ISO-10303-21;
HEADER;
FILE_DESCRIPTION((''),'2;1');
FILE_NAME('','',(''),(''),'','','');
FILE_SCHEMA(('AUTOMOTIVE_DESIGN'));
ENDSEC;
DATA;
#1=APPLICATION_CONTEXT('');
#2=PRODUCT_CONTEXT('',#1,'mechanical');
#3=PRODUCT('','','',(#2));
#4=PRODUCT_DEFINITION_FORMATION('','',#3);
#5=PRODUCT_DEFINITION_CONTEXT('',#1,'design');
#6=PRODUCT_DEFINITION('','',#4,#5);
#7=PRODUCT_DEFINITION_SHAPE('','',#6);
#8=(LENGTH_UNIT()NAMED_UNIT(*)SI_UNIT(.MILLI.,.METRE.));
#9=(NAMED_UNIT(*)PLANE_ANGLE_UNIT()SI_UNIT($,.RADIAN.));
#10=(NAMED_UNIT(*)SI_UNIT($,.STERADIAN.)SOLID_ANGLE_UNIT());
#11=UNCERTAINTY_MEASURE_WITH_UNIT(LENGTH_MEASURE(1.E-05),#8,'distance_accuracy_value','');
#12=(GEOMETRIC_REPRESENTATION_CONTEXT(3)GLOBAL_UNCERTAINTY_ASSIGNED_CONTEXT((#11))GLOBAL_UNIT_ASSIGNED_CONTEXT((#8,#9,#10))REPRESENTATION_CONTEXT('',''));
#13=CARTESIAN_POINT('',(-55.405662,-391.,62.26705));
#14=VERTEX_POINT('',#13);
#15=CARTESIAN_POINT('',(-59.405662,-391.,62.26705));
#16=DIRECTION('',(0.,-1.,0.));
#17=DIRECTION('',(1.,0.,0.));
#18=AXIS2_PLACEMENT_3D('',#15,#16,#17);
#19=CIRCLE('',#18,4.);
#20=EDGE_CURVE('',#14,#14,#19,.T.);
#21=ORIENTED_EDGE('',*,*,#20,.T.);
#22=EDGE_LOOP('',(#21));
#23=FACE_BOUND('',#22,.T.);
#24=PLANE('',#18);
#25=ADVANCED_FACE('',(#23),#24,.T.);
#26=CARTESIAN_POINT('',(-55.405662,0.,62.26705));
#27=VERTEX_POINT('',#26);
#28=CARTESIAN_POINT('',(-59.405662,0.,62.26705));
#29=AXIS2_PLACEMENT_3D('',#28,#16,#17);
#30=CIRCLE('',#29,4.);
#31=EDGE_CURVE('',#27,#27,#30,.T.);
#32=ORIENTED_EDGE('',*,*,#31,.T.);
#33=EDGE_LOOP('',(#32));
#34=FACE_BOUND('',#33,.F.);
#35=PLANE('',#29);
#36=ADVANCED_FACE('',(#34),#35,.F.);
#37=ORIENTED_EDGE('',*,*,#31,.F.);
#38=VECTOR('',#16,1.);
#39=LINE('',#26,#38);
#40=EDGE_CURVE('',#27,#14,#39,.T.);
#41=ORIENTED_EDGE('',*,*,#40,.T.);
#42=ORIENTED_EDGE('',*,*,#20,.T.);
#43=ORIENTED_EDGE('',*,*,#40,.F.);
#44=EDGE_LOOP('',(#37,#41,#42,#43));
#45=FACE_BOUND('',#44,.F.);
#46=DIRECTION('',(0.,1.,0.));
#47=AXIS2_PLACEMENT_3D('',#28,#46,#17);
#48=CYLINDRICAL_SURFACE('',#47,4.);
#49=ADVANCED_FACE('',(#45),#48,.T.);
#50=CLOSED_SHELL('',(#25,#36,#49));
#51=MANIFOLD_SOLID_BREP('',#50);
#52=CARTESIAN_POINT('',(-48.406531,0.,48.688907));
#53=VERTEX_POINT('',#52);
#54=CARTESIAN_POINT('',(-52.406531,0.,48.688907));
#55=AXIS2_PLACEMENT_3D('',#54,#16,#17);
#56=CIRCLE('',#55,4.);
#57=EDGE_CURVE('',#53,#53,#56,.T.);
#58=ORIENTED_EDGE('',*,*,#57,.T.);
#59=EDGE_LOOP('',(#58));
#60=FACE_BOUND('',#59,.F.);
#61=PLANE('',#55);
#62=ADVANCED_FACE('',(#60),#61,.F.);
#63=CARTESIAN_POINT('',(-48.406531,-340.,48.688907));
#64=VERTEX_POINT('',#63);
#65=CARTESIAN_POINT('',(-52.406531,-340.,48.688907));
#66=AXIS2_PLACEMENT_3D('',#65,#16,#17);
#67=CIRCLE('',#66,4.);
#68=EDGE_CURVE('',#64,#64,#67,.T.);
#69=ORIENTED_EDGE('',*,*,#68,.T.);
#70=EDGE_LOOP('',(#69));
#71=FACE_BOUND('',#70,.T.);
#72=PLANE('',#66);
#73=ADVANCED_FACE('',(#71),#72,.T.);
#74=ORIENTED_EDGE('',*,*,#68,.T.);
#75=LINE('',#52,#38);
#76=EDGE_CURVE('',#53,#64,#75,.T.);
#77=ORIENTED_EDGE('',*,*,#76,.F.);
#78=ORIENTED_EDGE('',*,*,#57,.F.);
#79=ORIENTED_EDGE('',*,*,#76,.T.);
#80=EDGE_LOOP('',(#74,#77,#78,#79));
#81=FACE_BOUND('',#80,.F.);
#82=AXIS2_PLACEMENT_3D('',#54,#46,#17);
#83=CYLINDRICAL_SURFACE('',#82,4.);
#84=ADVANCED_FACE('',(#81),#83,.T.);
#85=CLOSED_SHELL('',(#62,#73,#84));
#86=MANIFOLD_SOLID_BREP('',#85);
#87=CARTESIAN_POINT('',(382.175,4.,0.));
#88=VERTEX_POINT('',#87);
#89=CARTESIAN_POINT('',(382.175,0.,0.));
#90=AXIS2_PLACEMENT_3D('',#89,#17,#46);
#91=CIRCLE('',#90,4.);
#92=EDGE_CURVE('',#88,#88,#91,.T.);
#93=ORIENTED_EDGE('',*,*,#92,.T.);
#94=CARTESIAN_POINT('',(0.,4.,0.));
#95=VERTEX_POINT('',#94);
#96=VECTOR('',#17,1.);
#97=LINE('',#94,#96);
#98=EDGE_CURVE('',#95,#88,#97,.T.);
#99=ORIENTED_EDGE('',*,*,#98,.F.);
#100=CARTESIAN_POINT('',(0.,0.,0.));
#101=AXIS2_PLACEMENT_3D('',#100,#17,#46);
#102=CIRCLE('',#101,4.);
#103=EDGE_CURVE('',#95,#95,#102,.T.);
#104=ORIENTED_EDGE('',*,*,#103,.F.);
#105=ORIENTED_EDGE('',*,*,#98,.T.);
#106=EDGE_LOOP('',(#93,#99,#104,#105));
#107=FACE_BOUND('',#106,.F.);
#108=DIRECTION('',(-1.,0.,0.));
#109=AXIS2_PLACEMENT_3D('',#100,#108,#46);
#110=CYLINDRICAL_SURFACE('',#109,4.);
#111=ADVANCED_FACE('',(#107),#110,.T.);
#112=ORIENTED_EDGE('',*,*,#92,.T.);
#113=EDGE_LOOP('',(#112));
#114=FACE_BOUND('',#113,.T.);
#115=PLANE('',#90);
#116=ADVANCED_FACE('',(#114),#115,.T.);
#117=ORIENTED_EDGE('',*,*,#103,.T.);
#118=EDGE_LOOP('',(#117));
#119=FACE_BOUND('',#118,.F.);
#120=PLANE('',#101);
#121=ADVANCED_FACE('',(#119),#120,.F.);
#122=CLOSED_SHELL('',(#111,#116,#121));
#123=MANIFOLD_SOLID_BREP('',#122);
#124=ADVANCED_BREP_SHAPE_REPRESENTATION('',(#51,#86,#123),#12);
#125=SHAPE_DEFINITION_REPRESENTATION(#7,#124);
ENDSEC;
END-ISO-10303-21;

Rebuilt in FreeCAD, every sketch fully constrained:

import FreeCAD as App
import Part
import Sketcher
from FreeCAD import Vector

doc = App.newDocument("Part")
body = doc.addObject("PartDesign::Body", "Body")

sketch1 = body.newObject("Sketcher::SketchObject", "Sketch")
sketch1.AttachmentSupport = (doc.getObject("YZ_Plane"), [""])
sketch1.MapMode = "FlatFace"
sketch1.addGeometry(Part.Circle(Vector(0, 0, 0), Vector(0, 0, 1), 4), False)
sketch1.addConstraint([
    Sketcher.Constraint("Coincident", 0, 3, -1, 1),
    Sketcher.Constraint("Diameter", 0, 8.0),
])
pad1 = body.newObject("PartDesign::Pad", "Pad")
pad1.Profile = sketch1
pad1.Length = 382.175
body2 = doc.addObject("PartDesign::Body", "Body001")

sketch2 = body2.newObject("Sketcher::SketchObject", "Sketch001")
sketch2.AttachmentSupport = (doc.getObject("XZ_Plane001"), [""])
sketch2.MapMode = "FlatFace"
sketch2.addGeometry(Part.Circle(Vector(-59.405662, 62.26705, 0), Vector(0, 0, 1), 4), False)
sketch2.addConstraint([
    Sketcher.Constraint("Diameter", 0, 8.0),
    Sketcher.Constraint("DistanceY", -1, 1, 0, 3, 62.26705),
    Sketcher.Constraint("DistanceX", 0, 3, -1, 1, 59.405662),
])
pad2 = body2.newObject("PartDesign::Pad", "Pad001")
pad2.Profile = sketch2
pad2.Length = 391
body3 = doc.addObject("PartDesign::Body", "Body002")

sketch3 = body3.newObject("Sketcher::SketchObject", "Sketch002")
sketch3.AttachmentSupport = (doc.getObject("XZ_Plane002"), [""])
sketch3.MapMode = "FlatFace"
sketch3.addGeometry(Part.Circle(Vector(-52.406531, 48.688907, 0), Vector(0, 0, 1), 4), False)
sketch3.addConstraint([
    Sketcher.Constraint("Diameter", 0, 8.0),
    Sketcher.Constraint("DistanceX", 0, 3, -1, 1, 52.406531),
    Sketcher.Constraint("DistanceY", -1, 1, 0, 3, 48.688907),
])
pad3 = body3.newObject("PartDesign::Pad", "Pad002")
pad3.Profile = sketch3
pad3.Length = 340

doc.recompute()
